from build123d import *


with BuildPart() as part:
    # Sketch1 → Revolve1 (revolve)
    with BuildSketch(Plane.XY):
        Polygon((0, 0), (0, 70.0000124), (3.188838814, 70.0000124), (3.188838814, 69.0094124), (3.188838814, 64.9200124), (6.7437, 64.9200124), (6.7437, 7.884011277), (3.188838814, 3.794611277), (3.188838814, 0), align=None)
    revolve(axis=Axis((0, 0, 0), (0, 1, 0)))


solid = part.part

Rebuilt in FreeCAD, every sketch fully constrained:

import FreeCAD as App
import Part
import Sketcher

V = App.Vector
Q = App.Units.Quantity

doc = App.newDocument("Part")
body = doc.addObject("PartDesign::Body", "Body")

# Sketch on XY plane
sketch1 = doc.addObject("Sketcher::SketchObject", "Sketch")
body.addObject(sketch1)
sketch1.AttachmentSupport = (doc.XY_Plane, [""])
sketch1.MapMode = "FlatFace"
sketch1.addGeometry(Part.LineSegment(V(0, 70.000012, 0), V(0, 0, 0)), False)
sketch1.addGeometry(Part.LineSegment(V(0, 0, 0), V(3.188839, 0, 0)), False)
sketch1.addGeometry(Part.LineSegment(V(3.188839, 0, 0), V(3.188839, 3.794611, 0)), False)
sketch1.addGeometry(Part.LineSegment(V(3.188839, 3.794611, 0), V(6.7437, 7.884011, 0)), False)
sketch1.addGeometry(Part.LineSegment(V(6.7437, 7.884011, 0), V(6.7437, 64.920012, 0)), False)
sketch1.addGeometry(Part.LineSegment(V(6.7437, 64.920012, 0), V(3.188839, 64.920012, 0)), False)
sketch1.addGeometry(Part.LineSegment(V(3.188839, 64.920012, 0), V(3.188839, 70.000012, 0)), False)
sketch1.addGeometry(Part.LineSegment(V(3.188839, 70.000012, 0), V(0, 70.000012, 0)), False)
sketch1.addConstraint(Sketcher.Constraint("Coincident", 0, 2, 1, 1))
sketch1.addConstraint(Sketcher.Constraint("Coincident", 1, 2, 2, 1))
sketch1.addConstraint(Sketcher.Constraint("Coincident", 2, 2, 3, 1))
sketch1.addConstraint(Sketcher.Constraint("Coincident", 3, 2, 4, 1))
sketch1.addConstraint(Sketcher.Constraint("Coincident", 4, 2, 5, 1))
sketch1.addConstraint(Sketcher.Constraint("Coincident", 5, 2, 6, 1))
sketch1.addConstraint(Sketcher.Constraint("Coincident", 6, 2, 7, 1))
sketch1.addConstraint(Sketcher.Constraint("Coincident", 7, 2, 0, 1))
sketch1.addConstraint(Sketcher.Constraint("Vertical", 0))
sketch1.addConstraint(Sketcher.Constraint("Horizontal", 1))
sketch1.addConstraint(Sketcher.Constraint("Vertical", 2))
sketch1.addConstraint(Sketcher.Constraint("Vertical", 4))
sketch1.addConstraint(Sketcher.Constraint("Horizontal", 5))
sketch1.addConstraint(Sketcher.Constraint("Vertical", 6))
sketch1.addConstraint(Sketcher.Constraint("Horizontal", 7))
sketch1.addConstraint(Sketcher.Constraint("Coincident", 0, 2, -1, 1))
sketch1.addConstraint(Sketcher.Constraint("Vertical", 2, 2, 5, 2))
sketch1.addConstraint(Sketcher.Constraint("DistanceY", 6, 1, 6, 2, Q("0.2 in")))
sketch1.addConstraint(Sketcher.Constraint("Angle", 3, Q("49 deg")))
sketch1.addConstraint(Sketcher.Constraint("DistanceY", 2, 2, 3, 2, Q("0.161 in")))
sketch1.addConstraint(Sketcher.Constraint("DistanceY", 4, 1, 4, 2, 57.036001))
sketch1.addConstraint(Sketcher.Constraint("DistanceX", -1, 1, 3, 2, Q("0.2655 in")))
sketch1.addConstraint(Sketcher.Constraint("DistanceY", 2, 1, 2, 2, 3.794611))
revolution = doc.addObject("PartDesign::Revolution", "Revolution")
body.addObject(revolution)
revolution.Profile = sketch1
revolution.ReferenceAxis = (sketch1, ["V_Axis"])
revolution.Angle = 360

doc.recompute()
